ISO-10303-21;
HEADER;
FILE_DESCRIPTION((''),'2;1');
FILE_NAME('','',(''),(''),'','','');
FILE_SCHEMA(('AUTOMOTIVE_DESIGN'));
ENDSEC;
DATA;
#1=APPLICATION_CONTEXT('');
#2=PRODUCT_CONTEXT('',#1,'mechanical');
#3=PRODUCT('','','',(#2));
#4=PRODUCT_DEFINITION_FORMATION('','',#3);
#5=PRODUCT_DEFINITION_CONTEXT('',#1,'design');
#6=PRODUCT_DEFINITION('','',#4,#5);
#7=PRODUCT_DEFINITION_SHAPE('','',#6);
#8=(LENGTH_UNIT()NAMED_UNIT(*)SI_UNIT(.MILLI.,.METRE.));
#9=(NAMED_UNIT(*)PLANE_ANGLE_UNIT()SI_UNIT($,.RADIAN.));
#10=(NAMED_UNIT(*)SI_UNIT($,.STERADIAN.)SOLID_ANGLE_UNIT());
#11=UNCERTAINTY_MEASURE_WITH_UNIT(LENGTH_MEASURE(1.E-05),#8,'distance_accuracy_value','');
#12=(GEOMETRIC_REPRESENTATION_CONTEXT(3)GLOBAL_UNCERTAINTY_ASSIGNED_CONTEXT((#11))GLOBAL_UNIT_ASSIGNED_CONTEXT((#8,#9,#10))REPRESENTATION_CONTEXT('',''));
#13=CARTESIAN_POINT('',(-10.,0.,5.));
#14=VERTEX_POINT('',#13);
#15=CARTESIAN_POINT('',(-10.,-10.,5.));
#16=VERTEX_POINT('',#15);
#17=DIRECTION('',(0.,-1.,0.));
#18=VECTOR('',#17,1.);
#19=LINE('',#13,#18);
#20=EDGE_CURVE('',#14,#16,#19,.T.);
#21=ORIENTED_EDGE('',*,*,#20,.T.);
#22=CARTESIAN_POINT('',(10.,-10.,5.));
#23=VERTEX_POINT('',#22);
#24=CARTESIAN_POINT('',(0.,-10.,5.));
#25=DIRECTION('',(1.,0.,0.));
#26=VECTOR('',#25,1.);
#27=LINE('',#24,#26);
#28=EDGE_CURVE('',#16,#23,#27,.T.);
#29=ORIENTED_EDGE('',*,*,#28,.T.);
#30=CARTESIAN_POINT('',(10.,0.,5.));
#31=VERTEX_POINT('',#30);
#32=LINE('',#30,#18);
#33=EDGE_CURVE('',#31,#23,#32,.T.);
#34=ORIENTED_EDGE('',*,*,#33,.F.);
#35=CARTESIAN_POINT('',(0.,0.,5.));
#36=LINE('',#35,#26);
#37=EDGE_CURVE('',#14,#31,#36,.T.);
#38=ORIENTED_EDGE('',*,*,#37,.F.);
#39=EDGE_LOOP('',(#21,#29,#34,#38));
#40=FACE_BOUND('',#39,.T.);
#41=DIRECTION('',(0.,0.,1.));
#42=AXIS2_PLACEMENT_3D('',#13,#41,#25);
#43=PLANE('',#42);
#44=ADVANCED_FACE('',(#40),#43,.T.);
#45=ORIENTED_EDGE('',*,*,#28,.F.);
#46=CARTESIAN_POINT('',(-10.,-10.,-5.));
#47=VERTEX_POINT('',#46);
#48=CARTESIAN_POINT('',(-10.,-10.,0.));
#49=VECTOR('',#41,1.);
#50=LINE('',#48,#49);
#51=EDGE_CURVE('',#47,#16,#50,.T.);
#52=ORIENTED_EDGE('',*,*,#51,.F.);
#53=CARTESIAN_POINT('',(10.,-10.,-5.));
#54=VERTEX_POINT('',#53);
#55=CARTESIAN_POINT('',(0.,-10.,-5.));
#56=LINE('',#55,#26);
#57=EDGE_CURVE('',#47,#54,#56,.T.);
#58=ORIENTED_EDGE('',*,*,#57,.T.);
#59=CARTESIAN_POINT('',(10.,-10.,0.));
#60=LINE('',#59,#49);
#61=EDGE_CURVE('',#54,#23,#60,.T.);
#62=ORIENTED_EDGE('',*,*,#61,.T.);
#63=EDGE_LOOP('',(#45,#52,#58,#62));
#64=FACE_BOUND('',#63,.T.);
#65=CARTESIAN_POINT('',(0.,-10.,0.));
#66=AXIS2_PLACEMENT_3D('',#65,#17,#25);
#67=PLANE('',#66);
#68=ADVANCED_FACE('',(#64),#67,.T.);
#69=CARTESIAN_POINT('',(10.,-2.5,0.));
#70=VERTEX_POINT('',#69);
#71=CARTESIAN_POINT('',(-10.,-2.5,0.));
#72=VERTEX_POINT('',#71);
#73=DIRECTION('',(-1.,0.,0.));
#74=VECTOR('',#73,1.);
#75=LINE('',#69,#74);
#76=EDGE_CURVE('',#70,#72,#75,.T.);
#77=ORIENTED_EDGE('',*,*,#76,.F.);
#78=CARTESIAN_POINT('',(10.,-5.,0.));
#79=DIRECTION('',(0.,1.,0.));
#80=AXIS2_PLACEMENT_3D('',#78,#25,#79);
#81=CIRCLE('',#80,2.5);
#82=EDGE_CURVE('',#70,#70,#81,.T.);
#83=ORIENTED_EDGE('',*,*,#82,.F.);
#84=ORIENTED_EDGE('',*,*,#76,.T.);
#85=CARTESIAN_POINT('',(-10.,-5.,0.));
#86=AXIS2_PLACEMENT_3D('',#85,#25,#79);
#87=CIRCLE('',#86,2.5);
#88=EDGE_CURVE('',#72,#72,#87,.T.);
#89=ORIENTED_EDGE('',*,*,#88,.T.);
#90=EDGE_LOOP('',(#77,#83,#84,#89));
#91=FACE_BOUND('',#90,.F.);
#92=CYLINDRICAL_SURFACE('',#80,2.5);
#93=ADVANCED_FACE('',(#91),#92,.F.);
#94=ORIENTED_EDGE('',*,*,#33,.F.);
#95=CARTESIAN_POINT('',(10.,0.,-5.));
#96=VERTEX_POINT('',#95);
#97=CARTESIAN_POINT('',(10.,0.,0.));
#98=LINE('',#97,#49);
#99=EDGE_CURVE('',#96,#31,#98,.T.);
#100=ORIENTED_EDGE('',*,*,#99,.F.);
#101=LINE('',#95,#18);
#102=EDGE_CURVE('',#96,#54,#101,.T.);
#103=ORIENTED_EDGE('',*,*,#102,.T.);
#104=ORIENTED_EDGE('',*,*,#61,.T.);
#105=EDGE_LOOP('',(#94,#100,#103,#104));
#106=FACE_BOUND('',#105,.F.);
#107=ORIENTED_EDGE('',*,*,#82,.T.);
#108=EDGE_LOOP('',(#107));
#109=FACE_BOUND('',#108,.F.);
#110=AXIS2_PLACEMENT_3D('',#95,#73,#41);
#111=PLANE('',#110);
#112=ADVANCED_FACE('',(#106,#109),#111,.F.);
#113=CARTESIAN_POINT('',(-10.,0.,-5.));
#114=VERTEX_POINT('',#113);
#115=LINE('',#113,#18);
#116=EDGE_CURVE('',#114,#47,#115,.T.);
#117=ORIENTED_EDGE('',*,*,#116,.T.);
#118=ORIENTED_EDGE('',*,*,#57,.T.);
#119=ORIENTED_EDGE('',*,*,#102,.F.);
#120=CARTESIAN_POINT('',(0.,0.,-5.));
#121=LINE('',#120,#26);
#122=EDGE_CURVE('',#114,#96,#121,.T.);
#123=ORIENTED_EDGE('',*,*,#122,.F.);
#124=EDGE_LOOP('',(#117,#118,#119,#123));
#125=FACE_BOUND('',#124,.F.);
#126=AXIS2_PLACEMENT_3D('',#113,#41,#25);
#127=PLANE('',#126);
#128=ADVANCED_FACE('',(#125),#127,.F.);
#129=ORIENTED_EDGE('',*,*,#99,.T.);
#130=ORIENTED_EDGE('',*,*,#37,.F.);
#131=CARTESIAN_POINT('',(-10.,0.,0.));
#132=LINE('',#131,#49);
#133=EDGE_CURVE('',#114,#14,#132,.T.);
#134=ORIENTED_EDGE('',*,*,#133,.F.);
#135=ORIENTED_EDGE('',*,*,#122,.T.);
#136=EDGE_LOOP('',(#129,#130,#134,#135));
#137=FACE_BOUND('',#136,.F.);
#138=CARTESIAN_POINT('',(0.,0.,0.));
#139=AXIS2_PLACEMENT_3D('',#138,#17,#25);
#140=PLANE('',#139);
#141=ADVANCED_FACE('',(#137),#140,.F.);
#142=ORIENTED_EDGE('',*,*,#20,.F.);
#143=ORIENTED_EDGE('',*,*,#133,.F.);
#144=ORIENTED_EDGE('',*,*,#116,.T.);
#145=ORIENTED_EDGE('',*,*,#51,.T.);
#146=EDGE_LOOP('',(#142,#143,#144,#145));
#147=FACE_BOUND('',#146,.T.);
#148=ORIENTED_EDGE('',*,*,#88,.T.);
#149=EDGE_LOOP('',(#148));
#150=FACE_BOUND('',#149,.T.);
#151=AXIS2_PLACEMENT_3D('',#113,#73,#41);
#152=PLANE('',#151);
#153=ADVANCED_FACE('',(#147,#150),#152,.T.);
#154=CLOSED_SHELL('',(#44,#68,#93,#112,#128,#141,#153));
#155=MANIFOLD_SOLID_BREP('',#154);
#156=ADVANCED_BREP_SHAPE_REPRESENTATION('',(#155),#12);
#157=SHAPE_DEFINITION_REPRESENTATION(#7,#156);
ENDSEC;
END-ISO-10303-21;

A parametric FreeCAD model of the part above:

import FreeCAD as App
import Part
import Sketcher

V = App.Vector


def add_polygon(sketch, points):
    """Adds a closed chain of lines whose ends are joined by coincident constraints."""
    first, n = sketch.GeometryCount, len(points)
    for a, b in zip(points, points[1:] + points[:1]):
        sketch.addGeometry(Part.LineSegment(App.Vector(*a, 0), App.Vector(*b, 0)), False)
    for i in range(n):
        sketch.addConstraint(Sketcher.Constraint("Coincident", first + i, 2, first + (i + 1) % n, 1))

doc = App.newDocument("Part")
body = doc.addObject("PartDesign::Body", "Body")

# Sketch on XZ plane
sketch1 = body.newObject("Sketcher::SketchObject", "Sketch")
sketch1.AttachmentSupport = (doc.getObject("XZ_Plane"), [""])
sketch1.MapMode = "FlatFace"
add_polygon(sketch1, [(-10, 5), (-10, -5), (10, -5), (10, 5)])  # lines 0-3
sketch1.addConstraint(Sketcher.Constraint("Vertical", 0))
sketch1.addConstraint(Sketcher.Constraint("Horizontal", 1))
sketch1.addConstraint(Sketcher.Constraint("Vertical", 2))
sketch1.addConstraint(Sketcher.Constraint("Horizontal", 3))
sketch1.addConstraint(Sketcher.Constraint("Symmetric", 0, 2, 2, 2, -1, 1))
sketch1.addConstraint(Sketcher.Constraint("DistanceX", 1, 1, 1, 2, 20.0))
sketch1.addConstraint(Sketcher.Constraint("DistanceY", 0, 2, 0, 1, 10.0))
pad1 = body.newObject("PartDesign::Pad", "Pad")
pad1.Profile = sketch1
pad1.Length = 10

# Sketch on YZ plane
sketch2 = body.newObject("Sketcher::SketchObject", "Sketch001")
sketch2.AttachmentSupport = (doc.getObject("YZ_Plane"), [""])
sketch2.MapMode = "FlatFace"
sketch2.AttachmentOffset = App.Placement(V(0, 0, 10), App.Rotation())
sketch2.addGeometry(Part.Circle(V(-5, 0, 0), V(0, 0, 1), 2.5), False)
sketch2.addConstraint(Sketcher.Constraint("PointOnObject", 0, 3, -1))
sketch2.addConstraint(Sketcher.Constraint("Diameter", 0, 5.0))
sketch2.addConstraint(Sketcher.Constraint("DistanceX", 0, 3, -1, 1, 5.0))
pocket1 = body.newObject("PartDesign::Pocket", "Pocket")
pocket1.Profile = sketch2
pocket1.Type = "ThroughAll"

doc.recompute()
